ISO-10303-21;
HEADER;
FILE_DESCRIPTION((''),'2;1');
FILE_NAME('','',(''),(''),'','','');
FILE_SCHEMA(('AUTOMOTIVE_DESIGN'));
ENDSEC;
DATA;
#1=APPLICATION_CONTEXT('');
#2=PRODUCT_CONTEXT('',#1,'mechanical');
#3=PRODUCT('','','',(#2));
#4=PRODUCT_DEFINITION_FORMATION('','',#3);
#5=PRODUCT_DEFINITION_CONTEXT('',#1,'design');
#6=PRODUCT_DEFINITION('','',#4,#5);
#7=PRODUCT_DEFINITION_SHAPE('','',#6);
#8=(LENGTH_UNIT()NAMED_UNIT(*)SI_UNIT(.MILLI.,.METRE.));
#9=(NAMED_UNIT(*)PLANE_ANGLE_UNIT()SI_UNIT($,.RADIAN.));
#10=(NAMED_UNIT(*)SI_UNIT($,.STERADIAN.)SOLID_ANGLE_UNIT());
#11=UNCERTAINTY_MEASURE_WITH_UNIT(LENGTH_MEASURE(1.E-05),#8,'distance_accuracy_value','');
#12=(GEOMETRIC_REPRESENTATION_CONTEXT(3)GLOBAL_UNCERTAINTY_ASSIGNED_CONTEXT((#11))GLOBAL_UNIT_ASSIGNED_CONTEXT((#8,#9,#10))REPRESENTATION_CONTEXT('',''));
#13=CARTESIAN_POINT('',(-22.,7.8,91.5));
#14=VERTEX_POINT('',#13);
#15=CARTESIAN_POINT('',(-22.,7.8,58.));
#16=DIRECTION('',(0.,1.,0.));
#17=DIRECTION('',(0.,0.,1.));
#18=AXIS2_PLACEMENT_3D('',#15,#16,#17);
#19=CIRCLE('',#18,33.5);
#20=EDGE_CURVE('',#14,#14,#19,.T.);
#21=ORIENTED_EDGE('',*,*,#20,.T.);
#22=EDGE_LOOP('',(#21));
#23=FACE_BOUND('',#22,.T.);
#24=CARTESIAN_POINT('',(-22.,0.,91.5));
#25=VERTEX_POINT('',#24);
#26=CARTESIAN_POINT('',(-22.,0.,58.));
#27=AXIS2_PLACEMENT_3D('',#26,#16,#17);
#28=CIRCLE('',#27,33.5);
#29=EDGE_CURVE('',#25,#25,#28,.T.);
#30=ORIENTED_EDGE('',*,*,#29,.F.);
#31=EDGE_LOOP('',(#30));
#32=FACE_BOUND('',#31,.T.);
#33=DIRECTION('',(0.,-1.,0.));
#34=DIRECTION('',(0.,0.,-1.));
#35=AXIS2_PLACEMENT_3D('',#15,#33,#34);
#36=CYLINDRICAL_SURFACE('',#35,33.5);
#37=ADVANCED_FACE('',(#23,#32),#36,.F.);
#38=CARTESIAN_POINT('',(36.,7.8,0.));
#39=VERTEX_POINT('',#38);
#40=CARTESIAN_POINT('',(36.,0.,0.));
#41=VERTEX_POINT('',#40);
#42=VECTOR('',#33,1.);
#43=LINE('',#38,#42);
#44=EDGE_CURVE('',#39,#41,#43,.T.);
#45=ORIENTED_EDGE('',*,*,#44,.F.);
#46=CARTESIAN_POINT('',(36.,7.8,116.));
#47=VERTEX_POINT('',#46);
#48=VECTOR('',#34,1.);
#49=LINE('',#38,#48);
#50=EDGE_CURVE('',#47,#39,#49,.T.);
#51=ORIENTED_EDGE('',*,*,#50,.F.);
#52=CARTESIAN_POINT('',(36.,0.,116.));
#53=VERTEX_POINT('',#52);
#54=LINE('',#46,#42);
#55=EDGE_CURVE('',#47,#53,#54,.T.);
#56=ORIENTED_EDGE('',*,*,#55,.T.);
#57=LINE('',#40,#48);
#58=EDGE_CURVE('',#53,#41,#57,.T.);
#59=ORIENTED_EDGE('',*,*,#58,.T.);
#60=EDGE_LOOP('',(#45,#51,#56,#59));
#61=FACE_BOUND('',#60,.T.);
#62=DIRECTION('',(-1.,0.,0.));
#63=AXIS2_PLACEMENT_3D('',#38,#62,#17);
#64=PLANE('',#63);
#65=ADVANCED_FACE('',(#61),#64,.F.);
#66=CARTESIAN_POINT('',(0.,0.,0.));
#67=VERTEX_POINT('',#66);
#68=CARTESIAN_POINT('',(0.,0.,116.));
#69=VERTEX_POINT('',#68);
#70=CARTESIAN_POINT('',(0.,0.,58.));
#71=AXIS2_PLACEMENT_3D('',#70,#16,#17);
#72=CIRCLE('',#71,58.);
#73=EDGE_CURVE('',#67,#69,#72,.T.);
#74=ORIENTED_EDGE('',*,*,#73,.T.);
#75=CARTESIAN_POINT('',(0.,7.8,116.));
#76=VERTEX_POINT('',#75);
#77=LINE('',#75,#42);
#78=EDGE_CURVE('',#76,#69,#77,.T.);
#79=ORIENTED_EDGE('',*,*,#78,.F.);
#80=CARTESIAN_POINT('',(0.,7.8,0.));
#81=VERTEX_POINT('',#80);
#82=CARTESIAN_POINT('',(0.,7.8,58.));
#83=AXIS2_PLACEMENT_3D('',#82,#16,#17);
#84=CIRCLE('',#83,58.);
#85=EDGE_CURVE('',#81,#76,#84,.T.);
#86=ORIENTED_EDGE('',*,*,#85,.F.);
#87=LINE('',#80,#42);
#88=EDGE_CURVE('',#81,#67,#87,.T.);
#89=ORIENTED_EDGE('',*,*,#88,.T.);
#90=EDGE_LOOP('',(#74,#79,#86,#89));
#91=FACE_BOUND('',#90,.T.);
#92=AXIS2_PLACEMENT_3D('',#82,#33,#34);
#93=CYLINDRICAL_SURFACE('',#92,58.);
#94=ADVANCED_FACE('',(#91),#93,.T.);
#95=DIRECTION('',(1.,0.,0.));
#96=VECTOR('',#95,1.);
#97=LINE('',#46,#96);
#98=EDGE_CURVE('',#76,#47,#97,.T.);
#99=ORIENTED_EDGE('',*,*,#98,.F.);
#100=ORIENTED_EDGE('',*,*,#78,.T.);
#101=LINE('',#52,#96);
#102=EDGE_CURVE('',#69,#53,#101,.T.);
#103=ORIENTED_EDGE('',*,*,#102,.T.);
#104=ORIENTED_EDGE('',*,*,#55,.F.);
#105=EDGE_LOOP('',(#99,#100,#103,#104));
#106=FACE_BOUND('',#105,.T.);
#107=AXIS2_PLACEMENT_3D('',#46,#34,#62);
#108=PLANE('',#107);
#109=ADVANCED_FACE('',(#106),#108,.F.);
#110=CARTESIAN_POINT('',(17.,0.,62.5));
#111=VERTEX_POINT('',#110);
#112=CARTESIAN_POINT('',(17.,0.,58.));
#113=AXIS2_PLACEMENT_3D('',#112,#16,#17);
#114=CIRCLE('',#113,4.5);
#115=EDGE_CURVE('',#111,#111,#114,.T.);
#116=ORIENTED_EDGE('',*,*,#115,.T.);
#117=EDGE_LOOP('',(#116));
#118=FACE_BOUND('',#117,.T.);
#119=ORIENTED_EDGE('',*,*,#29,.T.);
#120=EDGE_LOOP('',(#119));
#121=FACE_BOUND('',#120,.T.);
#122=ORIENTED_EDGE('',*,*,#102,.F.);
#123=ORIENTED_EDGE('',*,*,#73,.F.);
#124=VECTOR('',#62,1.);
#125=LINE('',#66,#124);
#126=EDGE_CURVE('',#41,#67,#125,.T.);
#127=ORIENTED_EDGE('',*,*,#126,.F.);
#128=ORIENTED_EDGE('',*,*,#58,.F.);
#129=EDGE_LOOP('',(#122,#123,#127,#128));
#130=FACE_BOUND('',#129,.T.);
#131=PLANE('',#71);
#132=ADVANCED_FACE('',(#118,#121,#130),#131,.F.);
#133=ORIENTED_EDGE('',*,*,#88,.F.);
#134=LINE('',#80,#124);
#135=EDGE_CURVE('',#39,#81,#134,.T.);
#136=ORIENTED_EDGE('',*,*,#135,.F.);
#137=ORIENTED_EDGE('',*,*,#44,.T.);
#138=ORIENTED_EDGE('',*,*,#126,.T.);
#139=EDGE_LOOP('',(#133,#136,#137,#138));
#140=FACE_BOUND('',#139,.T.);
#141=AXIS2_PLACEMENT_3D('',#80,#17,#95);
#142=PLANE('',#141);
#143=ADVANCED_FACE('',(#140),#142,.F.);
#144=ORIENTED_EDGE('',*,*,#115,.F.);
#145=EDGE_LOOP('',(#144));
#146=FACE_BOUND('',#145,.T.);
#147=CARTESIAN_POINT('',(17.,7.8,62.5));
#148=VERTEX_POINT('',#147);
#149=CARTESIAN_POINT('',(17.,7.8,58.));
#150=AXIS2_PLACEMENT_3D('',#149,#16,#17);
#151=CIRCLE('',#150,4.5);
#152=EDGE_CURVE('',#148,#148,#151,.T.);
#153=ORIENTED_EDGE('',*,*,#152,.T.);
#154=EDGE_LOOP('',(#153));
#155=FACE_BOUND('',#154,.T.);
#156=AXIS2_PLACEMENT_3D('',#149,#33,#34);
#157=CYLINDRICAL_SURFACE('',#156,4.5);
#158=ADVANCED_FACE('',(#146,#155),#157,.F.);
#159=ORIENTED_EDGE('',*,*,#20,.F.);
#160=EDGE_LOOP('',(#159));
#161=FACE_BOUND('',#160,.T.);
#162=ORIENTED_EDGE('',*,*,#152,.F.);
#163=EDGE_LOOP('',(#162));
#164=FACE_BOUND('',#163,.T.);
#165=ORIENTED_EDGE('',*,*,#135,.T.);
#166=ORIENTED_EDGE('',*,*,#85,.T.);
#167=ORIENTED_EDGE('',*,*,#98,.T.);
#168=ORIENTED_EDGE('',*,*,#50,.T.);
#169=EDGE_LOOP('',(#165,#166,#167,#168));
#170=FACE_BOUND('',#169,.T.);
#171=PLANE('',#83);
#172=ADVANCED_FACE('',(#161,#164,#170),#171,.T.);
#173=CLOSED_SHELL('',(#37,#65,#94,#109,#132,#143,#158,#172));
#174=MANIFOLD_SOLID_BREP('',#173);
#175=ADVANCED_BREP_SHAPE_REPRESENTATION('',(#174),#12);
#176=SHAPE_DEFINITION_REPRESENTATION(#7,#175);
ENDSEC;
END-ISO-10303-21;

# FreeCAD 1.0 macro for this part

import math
import FreeCAD as App
import Part
import Sketcher

V = App.Vector

doc = App.newDocument("Part")
params = doc.addObject("Spreadsheet::Sheet", "Params")
for row, (alias, value) in enumerate([
    ("sketch1_diameter", "9 mm"),
    ("sketch1_diameter2", "67 mm"),
    ("sketch1_radius", "58 mm"),
    ("sketch1_width", "36 mm"),
    ("pad1_length", "7.8 mm"),
], start=1):
    params.set(f"A{row}", alias)
    params.set(f"B{row}", "=" + value)
    params.setAlias(f"B{row}", alias)

body = doc.addObject("PartDesign::Body", "Body")

# Sketch on XZ plane
sketch1 = body.newObject("Sketcher::SketchObject", "Sketch")
sketch1.AttachmentSupport = (doc.getObject("XZ_Plane"), [""])
sketch1.MapMode = "FlatFace"
sketch1.addGeometry(Part.LineSegment(V(36, 0, 0), V(0, 0, 0)), False)
sketch1.addGeometry(Part.ArcOfCircle(Part.Circle(V(0, 58, 0), V(0, 0, 1), 58), math.radians(90), math.radians(270)), False)
sketch1.addGeometry(Part.LineSegment(V(0, 116, 0), V(36, 116, 0)), False)
sketch1.addGeometry(Part.LineSegment(V(36, 116, 0), V(36, 0, 0)), False)
sketch1.addGeometry(Part.Circle(V(17, 58, 0), V(0, 0, 1), 4.5), False)
sketch1.addGeometry(Part.Circle(V(-22, 58, 0), V(0, 0, 1), 33.5), False)
sketch1.addConstraint(Sketcher.Constraint("Tangent", 0, 2, 1, 2))
sketch1.addConstraint(Sketcher.Constraint("Tangent", 1, 1, 2, 1))
sketch1.addConstraint(Sketcher.Constraint("Coincident", 2, 2, 3, 1))
sketch1.addConstraint(Sketcher.Constraint("Coincident", 3, 2, 0, 1))
sketch1.addConstraint(Sketcher.Constraint("Horizontal", 0))
sketch1.addConstraint(Sketcher.Constraint("Horizontal", 2))
sketch1.addConstraint(Sketcher.Constraint("Vertical", 3))
sketch1.addConstraint(Sketcher.Constraint("Coincident", 0, 2, -1, 1))
sketch1.addConstraint(Sketcher.Constraint("Horizontal", 1, 3, 4, 3))
sketch1.addConstraint(Sketcher.Constraint("Horizontal", 4, 3, 5, 3))
sketch1.addConstraint(Sketcher.Constraint("Diameter", 4, 9.0))
sketch1.addConstraint(Sketcher.Constraint("Diameter", 5, 67.0))
sketch1.addConstraint(Sketcher.Constraint("Radius", 1, 58.0))
sketch1.addConstraint(Sketcher.Constraint("DistanceX", 0, 2, 0, 1, 36.0))
sketch1.addConstraint(Sketcher.Constraint("DistanceX", -1, 1, 4, 3, 17.0))
sketch1.addConstraint(Sketcher.Constraint("DistanceX", 5, 3, -1, 1, 22.0))
sketch1.setExpression("Constraints[10]", "Params.sketch1_diameter")
sketch1.setExpression("Constraints[11]", "Params.sketch1_diameter2")
sketch1.setExpression("Constraints[12]", "Params.sketch1_radius")
sketch1.setExpression("Constraints[13]", "Params.sketch1_width")
pad1 = body.newObject("PartDesign::Pad", "Pad")
pad1.Profile = sketch1
pad1.setExpression("Length", "Params.pad1_length")
pad1.Reversed = True

doc.recompute()
